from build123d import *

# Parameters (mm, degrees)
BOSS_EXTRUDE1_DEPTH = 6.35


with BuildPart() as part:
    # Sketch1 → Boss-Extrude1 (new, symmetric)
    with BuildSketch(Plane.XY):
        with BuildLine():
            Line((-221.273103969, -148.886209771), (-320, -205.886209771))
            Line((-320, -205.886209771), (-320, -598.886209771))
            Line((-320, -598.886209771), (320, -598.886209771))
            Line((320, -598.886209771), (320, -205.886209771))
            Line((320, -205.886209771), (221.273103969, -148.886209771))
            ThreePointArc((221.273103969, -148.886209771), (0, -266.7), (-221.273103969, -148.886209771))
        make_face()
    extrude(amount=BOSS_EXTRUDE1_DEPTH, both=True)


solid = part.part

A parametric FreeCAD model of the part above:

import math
import FreeCAD as App
import Part
import Sketcher
Q = App.Units.Quantity

doc = App.newDocument("Part")
body = doc.addObject("PartDesign::Body", "Body")

# Sketch on XY plane
sketch1 = body.newObject("Sketcher::SketchObject", "Sketch")
sketch1.AttachmentSupport = (doc.getObject("XY_Plane"), [""])
sketch1.MapMode = "FlatFace"
sketch1.addGeometry([
    Part.LineSegment(App.Vector(-221, -149, 0), App.Vector(-320, -206, 0)),  # 0
    Part.LineSegment(App.Vector(-320, -206, 0), App.Vector(-320, -599, 0)),  # 1
    Part.LineSegment(App.Vector(-320, -599, 0), App.Vector(320, -599, 0)),  # 2
    Part.LineSegment(App.Vector(320, -599, 0), App.Vector(320, -206, 0)),  # 3
    Part.LineSegment(App.Vector(320, -206, 0), App.Vector(221, -149, 0)),  # 4
    Part.ArcOfCircle(Part.Circle(App.Vector(0, 0, 0), App.Vector(0, 0, 1), 267), math.radians(-146), math.radians(-34)),  # 5
], False)
sketch1.addConstraint([
    Sketcher.Constraint("Coincident", 0, 2, 1, 1),
    Sketcher.Constraint("Coincident", 1, 2, 2, 1),
    Sketcher.Constraint("Coincident", 2, 2, 3, 1),
    Sketcher.Constraint("Coincident", 3, 2, 4, 1),
    Sketcher.Constraint("Coincident", 4, 2, 5, 2),
    Sketcher.Constraint("Coincident", 5, 1, 0, 1),
    Sketcher.Constraint("Vertical", 1),
    Sketcher.Constraint("Horizontal", 2),
    Sketcher.Constraint("Vertical", 3),
    Sketcher.Constraint("Coincident", 5, 3, -1, 1),
    Sketcher.Constraint("Symmetric", 0, 2, 3, 2, -2),
    Sketcher.Constraint("Horizontal", 4, 2, 5, 1),
    Sketcher.Constraint("Radius", 5, Q("266.7 mm")),
    Sketcher.Constraint("DistanceX", 2, 1, 2, 2, Q("640 mm")),
    Sketcher.Constraint("DistanceY", 1, 2, 1, 1, Q("393 mm")),
    Sketcher.Constraint("Angle", 0, Q("-150 deg")),
    Sketcher.Constraint("Distance", 0, Q("114 mm")),
])
pad1 = body.newObject("PartDesign::Pad", "Pad")
pad1.Profile = sketch1
pad1.Length = 12.7
pad1.Midplane = True

doc.recompute()
